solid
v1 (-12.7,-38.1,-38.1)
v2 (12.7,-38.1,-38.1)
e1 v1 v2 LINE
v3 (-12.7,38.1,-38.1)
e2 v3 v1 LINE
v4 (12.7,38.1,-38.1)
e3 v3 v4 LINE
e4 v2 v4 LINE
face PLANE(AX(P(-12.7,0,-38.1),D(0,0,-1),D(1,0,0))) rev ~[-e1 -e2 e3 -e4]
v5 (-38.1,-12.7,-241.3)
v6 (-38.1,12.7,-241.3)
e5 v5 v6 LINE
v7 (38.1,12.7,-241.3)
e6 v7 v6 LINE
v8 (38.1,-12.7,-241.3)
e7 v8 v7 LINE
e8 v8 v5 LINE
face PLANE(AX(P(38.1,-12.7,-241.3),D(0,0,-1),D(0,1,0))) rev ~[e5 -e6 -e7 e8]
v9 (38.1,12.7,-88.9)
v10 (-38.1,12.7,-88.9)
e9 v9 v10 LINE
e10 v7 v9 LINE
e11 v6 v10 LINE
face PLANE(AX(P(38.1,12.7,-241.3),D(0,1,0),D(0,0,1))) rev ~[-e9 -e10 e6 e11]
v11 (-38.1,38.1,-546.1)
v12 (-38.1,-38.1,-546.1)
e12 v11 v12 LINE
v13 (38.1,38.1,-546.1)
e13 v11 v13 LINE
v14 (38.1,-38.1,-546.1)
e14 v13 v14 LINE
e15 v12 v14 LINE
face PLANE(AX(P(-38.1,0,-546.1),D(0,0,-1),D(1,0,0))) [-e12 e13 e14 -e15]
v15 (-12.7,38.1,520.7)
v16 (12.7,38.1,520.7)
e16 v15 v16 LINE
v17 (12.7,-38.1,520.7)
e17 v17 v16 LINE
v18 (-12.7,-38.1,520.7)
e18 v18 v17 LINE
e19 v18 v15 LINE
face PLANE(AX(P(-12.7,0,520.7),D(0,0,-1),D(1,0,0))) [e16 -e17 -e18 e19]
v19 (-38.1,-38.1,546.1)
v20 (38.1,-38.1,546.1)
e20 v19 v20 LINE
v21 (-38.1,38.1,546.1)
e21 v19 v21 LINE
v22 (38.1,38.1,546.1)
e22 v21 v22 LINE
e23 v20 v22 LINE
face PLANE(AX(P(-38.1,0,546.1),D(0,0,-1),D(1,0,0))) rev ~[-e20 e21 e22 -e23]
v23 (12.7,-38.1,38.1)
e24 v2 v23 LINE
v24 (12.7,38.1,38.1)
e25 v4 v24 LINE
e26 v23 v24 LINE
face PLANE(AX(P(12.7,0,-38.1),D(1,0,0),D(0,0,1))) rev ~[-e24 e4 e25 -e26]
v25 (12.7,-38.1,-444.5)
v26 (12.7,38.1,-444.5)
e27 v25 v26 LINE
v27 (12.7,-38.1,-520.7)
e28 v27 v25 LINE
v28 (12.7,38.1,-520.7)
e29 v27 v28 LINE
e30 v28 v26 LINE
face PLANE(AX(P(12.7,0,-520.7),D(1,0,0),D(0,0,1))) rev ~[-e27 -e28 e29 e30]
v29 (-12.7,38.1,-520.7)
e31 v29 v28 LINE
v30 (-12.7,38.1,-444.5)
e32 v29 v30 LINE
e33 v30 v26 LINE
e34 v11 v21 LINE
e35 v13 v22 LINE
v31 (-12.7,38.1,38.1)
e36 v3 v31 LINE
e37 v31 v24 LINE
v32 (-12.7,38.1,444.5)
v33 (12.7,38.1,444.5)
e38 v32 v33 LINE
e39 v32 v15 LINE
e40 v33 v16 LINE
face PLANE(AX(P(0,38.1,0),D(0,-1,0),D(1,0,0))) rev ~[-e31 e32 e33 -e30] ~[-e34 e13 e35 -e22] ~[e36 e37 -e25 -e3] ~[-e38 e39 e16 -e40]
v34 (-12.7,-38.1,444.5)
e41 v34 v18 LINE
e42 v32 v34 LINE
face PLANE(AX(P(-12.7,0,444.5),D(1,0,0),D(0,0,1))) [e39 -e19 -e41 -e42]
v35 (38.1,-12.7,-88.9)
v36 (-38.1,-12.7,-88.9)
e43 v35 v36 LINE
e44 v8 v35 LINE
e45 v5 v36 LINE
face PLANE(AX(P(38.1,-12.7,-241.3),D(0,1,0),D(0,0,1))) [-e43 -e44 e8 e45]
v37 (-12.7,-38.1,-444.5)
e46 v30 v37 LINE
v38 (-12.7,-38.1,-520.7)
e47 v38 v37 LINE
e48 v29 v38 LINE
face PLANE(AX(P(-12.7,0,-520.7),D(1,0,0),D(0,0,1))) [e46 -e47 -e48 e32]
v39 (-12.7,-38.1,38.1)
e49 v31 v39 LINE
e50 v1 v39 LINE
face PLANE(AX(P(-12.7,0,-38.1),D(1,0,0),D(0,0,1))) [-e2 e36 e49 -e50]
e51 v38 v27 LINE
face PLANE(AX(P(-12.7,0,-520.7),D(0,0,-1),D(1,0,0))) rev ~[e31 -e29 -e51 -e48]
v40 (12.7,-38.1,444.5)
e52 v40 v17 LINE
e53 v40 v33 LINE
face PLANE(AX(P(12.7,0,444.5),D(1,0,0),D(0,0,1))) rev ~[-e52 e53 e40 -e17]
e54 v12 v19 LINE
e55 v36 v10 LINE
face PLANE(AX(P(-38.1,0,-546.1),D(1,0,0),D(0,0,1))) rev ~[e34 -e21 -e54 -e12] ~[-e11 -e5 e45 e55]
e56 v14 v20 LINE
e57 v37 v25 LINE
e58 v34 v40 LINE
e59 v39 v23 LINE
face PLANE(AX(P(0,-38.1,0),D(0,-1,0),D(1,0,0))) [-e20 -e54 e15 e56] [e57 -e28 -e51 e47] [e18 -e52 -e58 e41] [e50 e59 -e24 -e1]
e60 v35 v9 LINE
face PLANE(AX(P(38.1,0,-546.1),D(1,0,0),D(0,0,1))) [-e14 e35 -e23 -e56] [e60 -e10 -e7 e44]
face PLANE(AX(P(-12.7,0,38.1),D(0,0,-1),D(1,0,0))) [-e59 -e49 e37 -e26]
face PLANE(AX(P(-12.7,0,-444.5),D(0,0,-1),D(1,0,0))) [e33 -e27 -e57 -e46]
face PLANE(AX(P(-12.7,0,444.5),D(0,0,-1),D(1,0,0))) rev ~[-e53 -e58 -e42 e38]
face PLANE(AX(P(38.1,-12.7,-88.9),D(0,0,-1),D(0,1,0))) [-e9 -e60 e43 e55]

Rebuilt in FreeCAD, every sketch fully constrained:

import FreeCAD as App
import Part
import Sketcher

V = App.Vector
Q = App.Units.Quantity


def add_polygon(sketch, points):
    """Adds a closed chain of lines whose ends are joined by coincident constraints."""
    first, n = sketch.GeometryCount, len(points)
    for a, b in zip(points, points[1:] + points[:1]):
        sketch.addGeometry(Part.LineSegment(App.Vector(*a, 0), App.Vector(*b, 0)), False)
    for i in range(n):
        sketch.addConstraint(Sketcher.Constraint("Coincident", first + i, 2, first + (i + 1) % n, 1))

doc = App.newDocument("Part")
body = doc.addObject("PartDesign::Body", "Body")

sketch1 = body.newObject("Sketcher::SketchObject", "Sketch")
sketch1.AttachmentSupport = (doc.getObject("XZ_Plane"), [""])
sketch1.MapMode = "FlatFace"
add_polygon(sketch1, [(-38, 546), (-38, -546), (38, -546), (38, 546)])
add_polygon(sketch1, [(13, -521), (-13, -521), (-13, -444), (13, -444)])
add_polygon(sketch1, [(13, -38), (-13, -38), (-13, 38), (13, 38)])
add_polygon(sketch1, [(13, 444), (-13, 444), (-13, 521), (13, 521)])
sketch1.addConstraint([
    Sketcher.Constraint("Vertical", 0),
    Sketcher.Constraint("Horizontal", 1),
    Sketcher.Constraint("Vertical", 2),
    Sketcher.Constraint("Horizontal", 3),
    Sketcher.Constraint("Horizontal", 4),
    Sketcher.Constraint("Vertical", 5),
    Sketcher.Constraint("Horizontal", 6),
    Sketcher.Constraint("Vertical", 7),
    Sketcher.Constraint("Horizontal", 8),
    Sketcher.Constraint("Vertical", 9),
    Sketcher.Constraint("Horizontal", 10),
    Sketcher.Constraint("Vertical", 11),
    Sketcher.Constraint("Horizontal", 12),
    Sketcher.Constraint("Vertical", 13),
    Sketcher.Constraint("Horizontal", 14),
    Sketcher.Constraint("Vertical", 15),
    Sketcher.Constraint("Symmetric", 0, 2, 2, 2, -1, 1),
    Sketcher.Constraint("Symmetric", 8, 2, 10, 2, -1, 1),
    Sketcher.Constraint("Symmetric", 6, 2, 12, 2, -1, 1),
    Sketcher.Constraint("Symmetric", 4, 2, 14, 2, -1, 1),
    Sketcher.Constraint("Vertical", 5, 2, 8, 2),
    Sketcher.Constraint("Vertical", 7, 2, 10, 2),
    Sketcher.Constraint("Equal", 3, 5),
    Sketcher.Constraint("Equal", 7, 9),
    Sketcher.Constraint("DistanceX", 1, 1, 1, 2, Q("3 in")),
    Sketcher.Constraint("DistanceX", 4, 2, 4, 1, Q("1 in")),
    Sketcher.Constraint("DistanceY", 0, 2, 0, 1, Q("43 in")),
    Sketcher.Constraint("DistanceY", 0, 2, 4, 2, Q("1 in")),
])
pad1 = body.newObject("PartDesign::Pad", "Pad")
pad1.Profile = sketch1
pad1.Type = "TwoLengths"
pad1.Length = Q("1.5 in")
pad1.Length2 = Q("1.5 in")

sketch2 = body.newObject("Sketcher::SketchObject", "Sketch001")
sketch2.AttachmentSupport = (doc.getObject("YZ_Plane"), [""])
sketch2.MapMode = "FlatFace"
sketch2.AttachmentOffset = App.Placement(V(0, 0, 1.5 * 25.4), App.Rotation())
add_polygon(sketch2, [(-13, -89), (-13, -241), (13, -241), (13, -89)])
sketch2.addConstraint([
    Sketcher.Constraint("Vertical", 0),
    Sketcher.Constraint("Horizontal", 1),
    Sketcher.Constraint("Vertical", 2),
    Sketcher.Constraint("Horizontal", 3),
    Sketcher.Constraint("DistanceX", 1, 1, 1, 2, Q("1 in")),
    Sketcher.Constraint("DistanceY", 0, 2, 0, 1, Q("6 in")),
    Sketcher.Constraint("DistanceX", 0, 2, -1, 1, Q("0.5 in")),
    Sketcher.Constraint("DistanceY", 0, 2, -1, 1, Q("9.5 in")),
])
pocket1 = body.newObject("PartDesign::Pocket", "Pocket")
pocket1.Profile = sketch2
pocket1.Length = Q("4 in")

doc.recompute()
